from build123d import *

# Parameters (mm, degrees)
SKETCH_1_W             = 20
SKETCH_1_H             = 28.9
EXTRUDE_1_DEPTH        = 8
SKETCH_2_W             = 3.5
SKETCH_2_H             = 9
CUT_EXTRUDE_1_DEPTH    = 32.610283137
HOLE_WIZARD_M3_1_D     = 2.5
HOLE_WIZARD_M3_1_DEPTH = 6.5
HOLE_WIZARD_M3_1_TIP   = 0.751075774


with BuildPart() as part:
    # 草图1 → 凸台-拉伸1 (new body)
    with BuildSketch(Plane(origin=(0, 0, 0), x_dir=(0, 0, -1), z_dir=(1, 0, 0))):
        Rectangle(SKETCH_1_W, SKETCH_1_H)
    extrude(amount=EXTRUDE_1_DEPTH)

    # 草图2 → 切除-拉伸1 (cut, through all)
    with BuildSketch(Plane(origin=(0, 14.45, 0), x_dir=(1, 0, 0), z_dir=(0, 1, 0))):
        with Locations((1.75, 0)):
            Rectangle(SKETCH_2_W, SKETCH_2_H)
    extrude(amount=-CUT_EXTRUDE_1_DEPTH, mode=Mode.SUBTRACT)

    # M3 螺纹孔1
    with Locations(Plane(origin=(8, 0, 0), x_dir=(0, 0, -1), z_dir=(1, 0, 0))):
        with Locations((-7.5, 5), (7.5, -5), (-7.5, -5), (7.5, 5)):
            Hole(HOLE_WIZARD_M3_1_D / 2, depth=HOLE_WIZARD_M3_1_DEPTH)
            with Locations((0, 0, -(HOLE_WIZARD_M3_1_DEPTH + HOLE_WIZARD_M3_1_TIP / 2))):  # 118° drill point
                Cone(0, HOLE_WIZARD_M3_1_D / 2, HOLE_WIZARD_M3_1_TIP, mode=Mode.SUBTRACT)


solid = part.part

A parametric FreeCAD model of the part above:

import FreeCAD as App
import Part
import Sketcher

doc = App.newDocument("Part")
body = doc.addObject("PartDesign::Body", "Body")

# Sketch on YZ plane
sketch1 = body.newObject("Sketcher::SketchObject", "Sketch")
sketch1.AttachmentSupport = (doc.getObject("YZ_Plane"), [""])
sketch1.MapMode = "FlatFace"
sketch1.addGeometry([
    Part.LineSegment(App.Vector(14, 10, 0), App.Vector(-14, 10, 0)),
    Part.LineSegment(App.Vector(-14, 10, 0), App.Vector(-14, -10, 0)),
    Part.LineSegment(App.Vector(-14, -10, 0), App.Vector(14, -10, 0)),
    Part.LineSegment(App.Vector(14, -10, 0), App.Vector(14, 10, 0)),
], False)
sketch1.addConstraint([
    Sketcher.Constraint("Coincident", 0, 2, 1, 1),
    Sketcher.Constraint("Coincident", 1, 2, 2, 1),
    Sketcher.Constraint("Coincident", 2, 2, 3, 1),
    Sketcher.Constraint("Coincident", 3, 2, 0, 1),
    Sketcher.Constraint("Horizontal", 0),
    Sketcher.Constraint("Vertical", 1),
    Sketcher.Constraint("Horizontal", 2),
    Sketcher.Constraint("Vertical", 3),
    Sketcher.Constraint("Symmetric", 0, 2, 2, 2, -1, 1),
    Sketcher.Constraint("DistanceY", 1, 2, 1, 1, 20.0),
    Sketcher.Constraint("DistanceX", 0, 2, 0, 1, 28.9),
])
pad1 = body.newObject("PartDesign::Pad", "Pad")
pad1.Profile = sketch1
pad1.Length = 8

# Sketch on XZ plane
sketch2 = body.newObject("Sketcher::SketchObject", "Sketch001")
sketch2.AttachmentSupport = (doc.getObject("XZ_Plane"), [""])
sketch2.MapMode = "FlatFace"
sketch2.AttachmentOffset = App.Placement(App.Vector(0, 0, -14.45), App.Rotation())
sketch2.addGeometry([
    Part.LineSegment(App.Vector(0, -4.5, 0), App.Vector(0, 4.5, 0)),
    Part.LineSegment(App.Vector(0, 4.5, 0), App.Vector(3.5, 4.5, 0)),
    Part.LineSegment(App.Vector(3.5, 4.5, 0), App.Vector(3.5, -4.5, 0)),
    Part.LineSegment(App.Vector(3.5, -4.5, 0), App.Vector(0, -4.5, 0)),
], False)
sketch2.addConstraint([
    Sketcher.Constraint("Coincident", 0, 2, 1, 1),
    Sketcher.Constraint("Coincident", 1, 2, 2, 1),
    Sketcher.Constraint("Coincident", 2, 2, 3, 1),
    Sketcher.Constraint("Coincident", 3, 2, 0, 1),
    Sketcher.Constraint("Vertical", 0),
    Sketcher.Constraint("Horizontal", 1),
    Sketcher.Constraint("Vertical", 2),
    Sketcher.Constraint("Horizontal", 3),
    Sketcher.Constraint("Symmetric", 0, 2, 3, 2, -1, 1),
    Sketcher.Constraint("DistanceY", 0, 1, 0, 2, 9.0),
    Sketcher.Constraint("DistanceX", 1, 1, 1, 2, 3.5),
])
pocket1 = body.newObject("PartDesign::Pocket", "Pocket")
pocket1.Profile = sketch2
pocket1.Type = "ThroughAll"
pocket1.Reversed = True

# Sketch on YZ plane
sketch3 = body.newObject("Sketcher::SketchObject", "Sketch002")
sketch3.AttachmentSupport = (doc.getObject("YZ_Plane"), [""])
sketch3.MapMode = "FlatFace"
sketch3.AttachmentOffset = App.Placement(App.Vector(0, 0, 8), App.Rotation())
sketch3.addGeometry([
    Part.Circle(App.Vector(5, 7.5, 0), App.Vector(0, 0, 1), 1.2),
    Part.Circle(App.Vector(-5, -7.5, 0), App.Vector(0, 0, 1), 1.2),
    Part.Circle(App.Vector(-5, 7.5, 0), App.Vector(0, 0, 1), 1.2),
    Part.Circle(App.Vector(5, -7.5, 0), App.Vector(0, 0, 1), 1.2),
], False)
sketch3.addConstraint([
    Sketcher.Constraint("Equal", 0, 1),
    Sketcher.Constraint("Equal", 1, 2),
    Sketcher.Constraint("Equal", 2, 3),
    Sketcher.Constraint("Symmetric", 0, 3, 1, 3, -1, 1),
    Sketcher.Constraint("Symmetric", 2, 3, 3, 3, -1, 1),
    Sketcher.Constraint("Symmetric", 0, 3, 2, 3, -2),
    Sketcher.Constraint("Diameter", 0, 2.5),
    Sketcher.Constraint("DistanceX", -1, 1, 0, 3, 5.0),
    Sketcher.Constraint("DistanceY", 1, 3, 0, 3, 15.0),
])
doc.recompute()
hole = body.newObject("PartDesign::Hole", "Hole")
hole.Profile = sketch3
hole.ThreadType = "None"
hole.Diameter = 2.5
hole.DepthType = "Dimension"
hole.Depth = 6.5
hole.DrillPoint = "Angled"
hole.DrillPointAngle = 118

doc.recompute()
